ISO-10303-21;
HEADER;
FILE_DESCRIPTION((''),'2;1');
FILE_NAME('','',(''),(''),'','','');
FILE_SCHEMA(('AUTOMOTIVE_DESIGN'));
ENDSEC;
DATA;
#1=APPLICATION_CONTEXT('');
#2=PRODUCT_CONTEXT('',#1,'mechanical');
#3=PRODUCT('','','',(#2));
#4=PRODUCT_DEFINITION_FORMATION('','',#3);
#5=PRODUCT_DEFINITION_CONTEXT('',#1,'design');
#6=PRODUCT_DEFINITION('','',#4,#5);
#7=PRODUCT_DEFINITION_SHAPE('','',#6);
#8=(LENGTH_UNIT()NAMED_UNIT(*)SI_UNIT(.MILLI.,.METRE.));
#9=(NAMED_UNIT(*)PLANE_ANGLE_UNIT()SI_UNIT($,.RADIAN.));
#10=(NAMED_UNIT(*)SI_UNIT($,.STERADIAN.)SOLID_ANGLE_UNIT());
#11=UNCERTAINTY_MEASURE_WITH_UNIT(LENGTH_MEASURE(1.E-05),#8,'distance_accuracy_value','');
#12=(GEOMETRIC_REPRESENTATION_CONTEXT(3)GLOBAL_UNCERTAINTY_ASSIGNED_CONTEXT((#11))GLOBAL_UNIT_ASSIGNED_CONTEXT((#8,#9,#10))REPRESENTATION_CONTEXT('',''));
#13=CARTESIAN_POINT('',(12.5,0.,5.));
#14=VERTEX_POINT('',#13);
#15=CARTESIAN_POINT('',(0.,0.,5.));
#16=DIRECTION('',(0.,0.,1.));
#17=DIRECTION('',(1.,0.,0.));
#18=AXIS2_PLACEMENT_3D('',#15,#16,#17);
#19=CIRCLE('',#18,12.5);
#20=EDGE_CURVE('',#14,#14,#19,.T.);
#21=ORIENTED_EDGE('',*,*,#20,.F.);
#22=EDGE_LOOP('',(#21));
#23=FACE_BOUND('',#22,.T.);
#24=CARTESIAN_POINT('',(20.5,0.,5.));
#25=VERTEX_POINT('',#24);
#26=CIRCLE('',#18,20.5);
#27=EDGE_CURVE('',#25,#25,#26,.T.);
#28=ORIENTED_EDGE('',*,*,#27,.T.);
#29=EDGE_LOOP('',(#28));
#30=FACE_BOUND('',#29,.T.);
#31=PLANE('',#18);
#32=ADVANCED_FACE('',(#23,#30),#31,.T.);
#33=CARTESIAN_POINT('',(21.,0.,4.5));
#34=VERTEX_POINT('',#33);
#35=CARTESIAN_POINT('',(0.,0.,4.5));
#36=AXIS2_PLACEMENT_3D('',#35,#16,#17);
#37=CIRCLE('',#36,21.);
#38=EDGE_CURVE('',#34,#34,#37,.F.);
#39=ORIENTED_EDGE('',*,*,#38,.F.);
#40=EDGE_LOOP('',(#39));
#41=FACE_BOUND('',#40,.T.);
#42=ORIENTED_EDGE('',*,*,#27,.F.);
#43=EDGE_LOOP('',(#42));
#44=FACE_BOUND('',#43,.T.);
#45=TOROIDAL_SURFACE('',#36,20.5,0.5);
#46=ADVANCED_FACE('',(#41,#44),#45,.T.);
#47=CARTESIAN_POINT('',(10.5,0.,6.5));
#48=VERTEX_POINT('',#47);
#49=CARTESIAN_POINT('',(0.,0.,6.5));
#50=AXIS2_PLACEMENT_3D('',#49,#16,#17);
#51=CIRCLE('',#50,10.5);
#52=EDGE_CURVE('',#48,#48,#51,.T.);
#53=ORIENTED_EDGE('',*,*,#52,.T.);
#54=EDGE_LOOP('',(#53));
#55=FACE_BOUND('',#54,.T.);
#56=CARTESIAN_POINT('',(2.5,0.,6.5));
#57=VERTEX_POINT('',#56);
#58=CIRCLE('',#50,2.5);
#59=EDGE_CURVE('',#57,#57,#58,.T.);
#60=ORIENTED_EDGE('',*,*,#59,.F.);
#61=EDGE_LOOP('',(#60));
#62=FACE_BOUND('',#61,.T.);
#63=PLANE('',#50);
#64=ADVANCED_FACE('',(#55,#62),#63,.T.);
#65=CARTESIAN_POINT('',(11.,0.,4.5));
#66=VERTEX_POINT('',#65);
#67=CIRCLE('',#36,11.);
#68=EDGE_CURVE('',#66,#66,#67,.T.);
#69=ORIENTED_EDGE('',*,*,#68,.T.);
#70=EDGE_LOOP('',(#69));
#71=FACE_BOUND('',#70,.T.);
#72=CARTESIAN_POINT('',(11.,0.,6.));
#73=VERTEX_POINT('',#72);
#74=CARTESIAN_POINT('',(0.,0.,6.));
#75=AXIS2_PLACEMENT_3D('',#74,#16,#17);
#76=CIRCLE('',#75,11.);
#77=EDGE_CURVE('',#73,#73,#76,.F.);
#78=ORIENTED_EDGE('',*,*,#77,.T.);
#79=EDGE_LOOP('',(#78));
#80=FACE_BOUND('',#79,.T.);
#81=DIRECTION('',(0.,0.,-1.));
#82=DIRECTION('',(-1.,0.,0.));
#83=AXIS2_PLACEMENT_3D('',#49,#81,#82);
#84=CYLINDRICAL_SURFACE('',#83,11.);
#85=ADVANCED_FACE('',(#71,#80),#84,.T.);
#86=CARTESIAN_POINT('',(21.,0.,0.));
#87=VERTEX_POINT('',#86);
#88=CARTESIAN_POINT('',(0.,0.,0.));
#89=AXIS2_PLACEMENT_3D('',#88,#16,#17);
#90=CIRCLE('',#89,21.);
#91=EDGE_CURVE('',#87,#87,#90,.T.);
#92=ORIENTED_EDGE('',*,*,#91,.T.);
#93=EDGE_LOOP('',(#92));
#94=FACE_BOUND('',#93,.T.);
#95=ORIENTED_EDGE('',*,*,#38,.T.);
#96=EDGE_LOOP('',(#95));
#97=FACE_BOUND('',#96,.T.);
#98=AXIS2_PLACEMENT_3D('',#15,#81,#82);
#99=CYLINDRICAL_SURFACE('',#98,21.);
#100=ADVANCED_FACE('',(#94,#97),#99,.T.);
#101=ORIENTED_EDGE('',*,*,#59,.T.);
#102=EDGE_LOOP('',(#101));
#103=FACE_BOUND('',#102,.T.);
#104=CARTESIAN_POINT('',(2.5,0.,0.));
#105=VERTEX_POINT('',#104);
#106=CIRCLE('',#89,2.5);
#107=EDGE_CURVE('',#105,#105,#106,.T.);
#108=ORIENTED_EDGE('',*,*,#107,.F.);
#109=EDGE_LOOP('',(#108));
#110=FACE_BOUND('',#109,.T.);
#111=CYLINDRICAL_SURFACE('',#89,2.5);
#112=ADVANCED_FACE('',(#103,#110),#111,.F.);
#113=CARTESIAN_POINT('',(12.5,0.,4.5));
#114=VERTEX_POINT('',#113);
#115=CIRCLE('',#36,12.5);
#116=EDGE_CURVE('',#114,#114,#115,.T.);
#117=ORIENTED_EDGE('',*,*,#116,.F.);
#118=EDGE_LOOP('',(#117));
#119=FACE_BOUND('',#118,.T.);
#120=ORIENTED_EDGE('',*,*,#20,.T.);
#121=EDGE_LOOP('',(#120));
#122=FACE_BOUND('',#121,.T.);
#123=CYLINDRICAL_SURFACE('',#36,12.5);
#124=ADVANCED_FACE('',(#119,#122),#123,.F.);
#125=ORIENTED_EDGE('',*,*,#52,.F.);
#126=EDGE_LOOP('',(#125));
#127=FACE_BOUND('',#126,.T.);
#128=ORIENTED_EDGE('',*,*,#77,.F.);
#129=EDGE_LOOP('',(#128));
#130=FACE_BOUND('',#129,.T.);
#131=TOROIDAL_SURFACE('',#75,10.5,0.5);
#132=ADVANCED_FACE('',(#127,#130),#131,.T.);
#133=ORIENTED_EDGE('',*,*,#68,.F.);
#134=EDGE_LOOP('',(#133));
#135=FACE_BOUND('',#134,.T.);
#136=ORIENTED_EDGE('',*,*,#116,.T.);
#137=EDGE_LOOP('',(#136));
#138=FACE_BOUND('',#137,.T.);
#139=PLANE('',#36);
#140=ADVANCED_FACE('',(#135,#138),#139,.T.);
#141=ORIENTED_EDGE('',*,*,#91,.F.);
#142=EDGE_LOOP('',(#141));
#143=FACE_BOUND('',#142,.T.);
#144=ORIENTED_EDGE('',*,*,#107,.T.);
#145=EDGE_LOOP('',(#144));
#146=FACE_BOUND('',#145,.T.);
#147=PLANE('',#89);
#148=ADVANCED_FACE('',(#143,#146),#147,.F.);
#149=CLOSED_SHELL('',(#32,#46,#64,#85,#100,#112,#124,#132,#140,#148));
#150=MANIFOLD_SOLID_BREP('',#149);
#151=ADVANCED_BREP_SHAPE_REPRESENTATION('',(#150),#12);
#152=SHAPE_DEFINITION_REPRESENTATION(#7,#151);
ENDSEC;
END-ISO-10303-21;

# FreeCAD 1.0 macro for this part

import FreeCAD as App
import Part
import Sketcher

V = App.Vector
Q = App.Units.Quantity


def edges_at(feature, points):
    """Names of the edges that pass closest to the given points."""
    edges = feature.Shape.Edges
    near = lambda p: min(range(len(edges)), key=lambda i: edges[i].distToShape(Part.Vertex(*p))[0])
    return sorted({f"Edge{near(p) + 1}" for p in points})

doc = App.newDocument("Part")
params = doc.addObject("Spreadsheet::Sheet", "Params")
for row, (alias, value) in enumerate([
    ("sketch1_diameter", "42 mm"),
    ("pad1_length", "5 mm"),
    ("sketch2_diameter", "25 mm"),
    ("pocket1_length", "0.5 mm"),
    ("sketch3_diameter", "22 mm"),
    ("pad2_length", "2 mm"),
    ("sketch4_diameter", "5 mm"),
    ("fillet_radius", "0.5 mm"),
    ("fillet2_radius", "0.5 mm"),
], start=1):
    params.set(f"A{row}", alias)
    params.set(f"B{row}", "=" + value)
    params.setAlias(f"B{row}", alias)

body = doc.addObject("PartDesign::Body", "Body")

sketch1 = doc.addObject("Sketcher::SketchObject", "Sketch")
body.addObject(sketch1)
sketch1.AttachmentSupport = (doc.XY_Plane, [""])
sketch1.MapMode = "FlatFace"
sketch1.addGeometry(Part.Circle(V(0, 0, 0), V(0, 0, 1), 21), False)
sketch1.addConstraint(Sketcher.Constraint("Coincident", 0, 3, -1, 1))
sketch1.addConstraint(Sketcher.Constraint("Diameter", 0, Q("42 mm")))
sketch1.setExpression("Constraints[1]", "Params.sketch1_diameter")
pad1 = doc.addObject("PartDesign::Pad", "Pad")
body.addObject(pad1)
pad1.Profile = sketch1
pad1.setExpression("Length", "Params.pad1_length")

sketch2 = doc.addObject("Sketcher::SketchObject", "Sketch001")
body.addObject(sketch2)
sketch2.AttachmentSupport = (doc.XY_Plane, [""])
sketch2.MapMode = "FlatFace"
sketch2.AttachmentOffset = App.Placement(V(0, 0, 5), App.Rotation())
sketch2.addGeometry(Part.Circle(V(0, 0, 0), V(0, 0, 1), 12), False)
sketch2.addConstraint(Sketcher.Constraint("Coincident", 0, 3, -1, 1))
sketch2.addConstraint(Sketcher.Constraint("Diameter", 0, Q("25 mm")))
sketch2.setExpression("Constraints[1]", "Params.sketch2_diameter")
pocket1 = doc.addObject("PartDesign::Pocket", "Pocket")
body.addObject(pocket1)
pocket1.Profile = sketch2
pocket1.setExpression("Length", "Params.pocket1_length")

sketch3 = doc.addObject("Sketcher::SketchObject", "Sketch002")
body.addObject(sketch3)
sketch3.AttachmentSupport = (doc.XY_Plane, [""])
sketch3.MapMode = "FlatFace"
sketch3.AttachmentOffset = App.Placement(V(0, 0, 4.5), App.Rotation())
sketch3.addGeometry(Part.Circle(V(0, 0, 0), V(0, 0, 1), 11), False)
sketch3.addConstraint(Sketcher.Constraint("Coincident", 0, 3, -1, 1))
sketch3.addConstraint(Sketcher.Constraint("Diameter", 0, Q("22 mm")))
sketch3.setExpression("Constraints[1]", "Params.sketch3_diameter")
pad2 = doc.addObject("PartDesign::Pad", "Pad001")
body.addObject(pad2)
pad2.Profile = sketch3
pad2.setExpression("Length", "Params.pad2_length")

sketch4 = doc.addObject("Sketcher::SketchObject", "Sketch003")
body.addObject(sketch4)
sketch4.AttachmentSupport = (doc.XY_Plane, [""])
sketch4.MapMode = "FlatFace"
sketch4.AttachmentOffset = App.Placement(V(0, 0, 6.5), App.Rotation())
sketch4.addGeometry(Part.Circle(V(0, 0, 0), V(0, 0, 1), 2.5), False)
sketch4.addConstraint(Sketcher.Constraint("Coincident", 0, 3, -1, 1))
sketch4.addConstraint(Sketcher.Constraint("Diameter", 0, Q("5 mm")))
sketch4.setExpression("Constraints[1]", "Params.sketch4_diameter")
pocket2 = doc.addObject("PartDesign::Pocket", "Pocket001")
body.addObject(pocket2)
pocket2.Profile = sketch4
pocket2.Type = "ThroughAll"
doc.recompute()

fillet = doc.addObject("PartDesign::Fillet", "Fillet")
body.addObject(fillet)
fillet.Base = (pocket2, edges_at(pocket2, [(-21, 0, 5)]))
fillet.setExpression("Radius", "Params.fillet_radius")
doc.recompute()

fillet2 = doc.addObject("PartDesign::Fillet", "Fillet001")
body.addObject(fillet2)
fillet2.Base = (fillet, edges_at(fillet, [(-11, 0, 6.5)]))
fillet2.setExpression("Radius", "Params.fillet2_radius")

doc.recompute()
